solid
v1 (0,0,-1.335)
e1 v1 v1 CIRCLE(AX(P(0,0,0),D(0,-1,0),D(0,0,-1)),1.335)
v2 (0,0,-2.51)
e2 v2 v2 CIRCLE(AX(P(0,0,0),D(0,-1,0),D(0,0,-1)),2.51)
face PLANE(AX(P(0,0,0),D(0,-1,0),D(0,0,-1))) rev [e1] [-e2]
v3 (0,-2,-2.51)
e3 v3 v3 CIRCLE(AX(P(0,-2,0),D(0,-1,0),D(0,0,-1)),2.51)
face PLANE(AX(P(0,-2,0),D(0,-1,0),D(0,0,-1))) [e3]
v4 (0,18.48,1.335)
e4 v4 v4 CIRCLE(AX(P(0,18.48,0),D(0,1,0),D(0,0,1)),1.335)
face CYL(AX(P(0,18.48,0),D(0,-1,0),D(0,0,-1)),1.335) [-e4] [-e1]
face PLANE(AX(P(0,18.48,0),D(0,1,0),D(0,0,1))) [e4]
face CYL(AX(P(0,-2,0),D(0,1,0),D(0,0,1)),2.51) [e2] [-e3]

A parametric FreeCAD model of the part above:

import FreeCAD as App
import Part
import Sketcher
from FreeCAD import Vector
Q = App.Units.Quantity

doc = App.newDocument("Part")
body = doc.addObject("PartDesign::Body", "Body")

sketch1 = body.newObject("Sketcher::SketchObject", "Sketch")
sketch1.AttachmentSupport = (doc.getObject("XZ_Plane"), [""])
sketch1.MapMode = "FlatFace"
sketch1.addGeometry(Part.Circle(Vector(0, 0, 0), Vector(0, 0, 1), 1.335), False)
sketch1.addConstraint(Sketcher.Constraint("Coincident", 0, 3, -1, 1))
sketch1.addConstraint(Sketcher.Constraint("Diameter", 0, Q("2.67 mm")))
pad1 = body.newObject("PartDesign::Pad", "Pad")
pad1.Profile = sketch1
pad1.Length = 18.48
pad1.Reversed = True

sketch2 = body.newObject("Sketcher::SketchObject", "Sketch001")
sketch2.AttachmentSupport = (doc.getObject("XZ_Plane"), [""])
sketch2.MapMode = "FlatFace"
sketch2.addGeometry(Part.Circle(Vector(0, 0, 0), Vector(0, 0, 1), 2.51), False)
sketch2.addConstraint(Sketcher.Constraint("Coincident", 0, 3, -1, 1))
sketch2.addConstraint(Sketcher.Constraint("Diameter", 0, Q("5.02 mm")))
pad2 = body.newObject("PartDesign::Pad", "Pad001")
pad2.Profile = sketch2
pad2.Length = 2

doc.recompute()
